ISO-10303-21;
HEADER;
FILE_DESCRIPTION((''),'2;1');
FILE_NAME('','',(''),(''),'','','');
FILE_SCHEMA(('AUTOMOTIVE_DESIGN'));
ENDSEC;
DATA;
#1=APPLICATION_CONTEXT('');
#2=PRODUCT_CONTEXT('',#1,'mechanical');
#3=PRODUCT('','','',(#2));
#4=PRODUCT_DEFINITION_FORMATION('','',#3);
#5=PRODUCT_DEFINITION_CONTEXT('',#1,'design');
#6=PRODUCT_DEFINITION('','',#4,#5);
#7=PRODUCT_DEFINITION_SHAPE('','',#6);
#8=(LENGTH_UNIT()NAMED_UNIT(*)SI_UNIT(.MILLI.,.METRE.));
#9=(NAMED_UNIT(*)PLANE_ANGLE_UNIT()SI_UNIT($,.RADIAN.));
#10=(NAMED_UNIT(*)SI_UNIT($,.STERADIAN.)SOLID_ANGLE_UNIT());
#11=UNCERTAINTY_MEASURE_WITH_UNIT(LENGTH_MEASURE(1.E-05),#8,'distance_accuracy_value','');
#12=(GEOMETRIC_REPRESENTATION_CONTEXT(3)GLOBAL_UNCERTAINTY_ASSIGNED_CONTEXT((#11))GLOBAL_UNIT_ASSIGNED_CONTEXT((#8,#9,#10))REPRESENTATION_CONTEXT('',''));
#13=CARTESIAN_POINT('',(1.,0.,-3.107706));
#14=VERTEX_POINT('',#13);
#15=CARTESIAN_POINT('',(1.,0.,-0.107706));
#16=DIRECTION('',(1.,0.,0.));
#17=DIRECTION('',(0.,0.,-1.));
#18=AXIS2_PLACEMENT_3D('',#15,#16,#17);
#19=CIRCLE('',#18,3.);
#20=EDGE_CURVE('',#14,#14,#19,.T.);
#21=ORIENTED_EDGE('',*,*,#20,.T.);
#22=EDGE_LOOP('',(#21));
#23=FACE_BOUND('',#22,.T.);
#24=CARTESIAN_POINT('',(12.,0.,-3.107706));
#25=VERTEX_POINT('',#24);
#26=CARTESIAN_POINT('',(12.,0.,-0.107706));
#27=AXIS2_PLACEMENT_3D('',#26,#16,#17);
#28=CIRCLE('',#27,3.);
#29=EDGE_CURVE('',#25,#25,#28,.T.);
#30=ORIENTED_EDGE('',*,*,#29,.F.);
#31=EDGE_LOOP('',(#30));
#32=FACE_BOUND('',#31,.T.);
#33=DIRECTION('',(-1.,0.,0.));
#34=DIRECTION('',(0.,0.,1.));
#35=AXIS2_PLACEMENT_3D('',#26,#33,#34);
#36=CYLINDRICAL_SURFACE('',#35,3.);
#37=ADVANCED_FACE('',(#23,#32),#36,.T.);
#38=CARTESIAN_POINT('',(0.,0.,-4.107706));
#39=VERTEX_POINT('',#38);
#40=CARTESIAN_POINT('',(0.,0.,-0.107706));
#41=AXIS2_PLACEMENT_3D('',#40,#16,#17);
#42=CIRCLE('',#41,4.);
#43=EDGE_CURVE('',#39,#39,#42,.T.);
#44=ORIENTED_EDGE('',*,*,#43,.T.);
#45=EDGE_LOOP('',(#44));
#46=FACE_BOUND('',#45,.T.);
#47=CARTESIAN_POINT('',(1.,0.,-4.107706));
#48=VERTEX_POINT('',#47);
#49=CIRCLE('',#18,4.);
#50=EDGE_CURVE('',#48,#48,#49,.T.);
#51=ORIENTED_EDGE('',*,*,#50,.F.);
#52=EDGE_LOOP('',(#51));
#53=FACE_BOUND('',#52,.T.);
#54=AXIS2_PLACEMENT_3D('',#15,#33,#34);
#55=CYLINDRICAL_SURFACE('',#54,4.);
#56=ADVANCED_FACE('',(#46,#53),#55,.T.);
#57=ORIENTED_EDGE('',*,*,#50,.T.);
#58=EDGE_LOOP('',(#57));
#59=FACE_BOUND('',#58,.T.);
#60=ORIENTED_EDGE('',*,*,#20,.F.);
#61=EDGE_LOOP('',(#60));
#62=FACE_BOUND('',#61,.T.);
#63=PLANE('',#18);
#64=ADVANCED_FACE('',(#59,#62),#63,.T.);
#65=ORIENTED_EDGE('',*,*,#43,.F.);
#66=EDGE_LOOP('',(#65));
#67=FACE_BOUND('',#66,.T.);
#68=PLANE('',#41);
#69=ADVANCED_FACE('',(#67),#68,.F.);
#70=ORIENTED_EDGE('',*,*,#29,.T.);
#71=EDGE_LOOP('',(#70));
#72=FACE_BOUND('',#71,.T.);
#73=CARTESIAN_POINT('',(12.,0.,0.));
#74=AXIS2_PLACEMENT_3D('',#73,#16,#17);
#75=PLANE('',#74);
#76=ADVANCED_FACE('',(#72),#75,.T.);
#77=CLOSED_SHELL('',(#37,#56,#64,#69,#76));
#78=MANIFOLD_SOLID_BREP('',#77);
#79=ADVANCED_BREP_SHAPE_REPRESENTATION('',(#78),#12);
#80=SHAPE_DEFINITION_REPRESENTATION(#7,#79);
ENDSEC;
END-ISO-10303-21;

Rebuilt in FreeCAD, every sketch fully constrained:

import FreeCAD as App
import Part
import Sketcher
from FreeCAD import Vector

doc = App.newDocument("Part")
body = doc.addObject("PartDesign::Body", "Body")

sketch1 = body.newObject("Sketcher::SketchObject", "Sketch")
sketch1.AttachmentSupport = (doc.getObject("YZ_Plane"), [""])
sketch1.MapMode = "FlatFace"
sketch1.addGeometry(Part.Circle(Vector(0, -0.1, 0), Vector(0, 0, 1), 4), False)
sketch1.addGeometry(Part.Circle(Vector(0, -0.1, 0), Vector(0, 0, 1), 3), False)
sketch1.addConstraint(Sketcher.Constraint("Coincident", 1, 3, 0, 3))
sketch1.addConstraint(Sketcher.Constraint("PointOnObject", 0, 3, -2))
sketch1.addConstraint(Sketcher.Constraint("Diameter", 0, 8.0))
sketch1.addConstraint(Sketcher.Constraint("Diameter", 1, 6.0))
sketch1.addConstraint(Sketcher.Constraint("DistanceY", 0, 3, -1, 1, 0.107706))
pad1 = body.newObject("PartDesign::Pad", "Pad")
pad1.Profile = sketch1
pad1.Length = 1

sketch2 = body.newObject("Sketcher::SketchObject", "Sketch001")
sketch2.AttachmentSupport = (doc.getObject("YZ_Plane"), [""])
sketch2.MapMode = "FlatFace"
sketch2.addGeometry(Part.Circle(Vector(0, -0.1, 0), Vector(0, 0, 1), 3), False)
sketch2.addConstraint(Sketcher.Constraint("PointOnObject", 0, 3, -2))
sketch2.addConstraint(Sketcher.Constraint("Diameter", 0, 6.0))
sketch2.addConstraint(Sketcher.Constraint("DistanceY", 0, 3, -1, 1, 0.107706))
pad2 = body.newObject("PartDesign::Pad", "Pad001")
pad2.Profile = sketch2
pad2.Length = 12

doc.recompute()
